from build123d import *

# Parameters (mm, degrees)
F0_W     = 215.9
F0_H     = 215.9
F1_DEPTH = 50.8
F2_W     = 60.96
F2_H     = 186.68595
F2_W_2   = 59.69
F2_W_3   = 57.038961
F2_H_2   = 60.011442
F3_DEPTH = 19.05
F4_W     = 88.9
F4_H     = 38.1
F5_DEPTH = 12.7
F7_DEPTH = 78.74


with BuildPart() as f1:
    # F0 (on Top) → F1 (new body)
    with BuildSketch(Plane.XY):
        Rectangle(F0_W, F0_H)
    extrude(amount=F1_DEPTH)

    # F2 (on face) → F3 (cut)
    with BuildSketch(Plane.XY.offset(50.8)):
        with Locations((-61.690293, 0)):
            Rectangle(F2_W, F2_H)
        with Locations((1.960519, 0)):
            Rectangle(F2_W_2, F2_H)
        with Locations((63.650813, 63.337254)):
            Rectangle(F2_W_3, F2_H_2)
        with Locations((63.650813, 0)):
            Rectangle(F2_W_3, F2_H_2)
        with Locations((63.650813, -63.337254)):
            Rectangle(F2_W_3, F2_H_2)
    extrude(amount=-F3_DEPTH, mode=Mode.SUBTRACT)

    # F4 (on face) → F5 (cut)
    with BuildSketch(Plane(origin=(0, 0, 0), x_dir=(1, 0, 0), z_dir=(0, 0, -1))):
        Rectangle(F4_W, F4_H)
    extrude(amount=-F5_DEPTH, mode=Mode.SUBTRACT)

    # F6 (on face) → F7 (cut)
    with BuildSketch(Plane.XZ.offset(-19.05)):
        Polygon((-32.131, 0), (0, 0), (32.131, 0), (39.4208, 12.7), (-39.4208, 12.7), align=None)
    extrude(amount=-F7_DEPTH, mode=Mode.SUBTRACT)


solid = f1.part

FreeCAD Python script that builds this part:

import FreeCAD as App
import Part
import Sketcher
Q = App.Units.Quantity

doc = App.newDocument("Part")
body = doc.addObject("PartDesign::Body", "Body")

# Sketch on XY plane
sketch1 = body.newObject("Sketcher::SketchObject", "Sketch")
sketch1.AttachmentSupport = (doc.getObject("XY_Plane"), [""])
sketch1.MapMode = "FlatFace"
sketch1.addGeometry([
    Part.LineSegment(App.Vector(-108, 108, 0), App.Vector(-108, -108, 0)),
    Part.LineSegment(App.Vector(-108, -108, 0), App.Vector(108, -108, 0)),
    Part.LineSegment(App.Vector(108, -108, 0), App.Vector(108, 108, 0)),
    Part.LineSegment(App.Vector(108, 108, 0), App.Vector(-108, 108, 0)),
], False)
sketch1.addConstraint([
    Sketcher.Constraint("Coincident", 0, 2, 1, 1),
    Sketcher.Constraint("Coincident", 1, 2, 2, 1),
    Sketcher.Constraint("Coincident", 2, 2, 3, 1),
    Sketcher.Constraint("Coincident", 3, 2, 0, 1),
    Sketcher.Constraint("Vertical", 0),
    Sketcher.Constraint("Horizontal", 1),
    Sketcher.Constraint("Vertical", 2),
    Sketcher.Constraint("Horizontal", 3),
    Sketcher.Constraint("Symmetric", 0, 2, 2, 2, -1, 1),
    Sketcher.Constraint("Equal", 3, 0),
    Sketcher.Constraint("DistanceX", 1, 1, 1, 2, Q("8.5 in")),
])
pad1 = body.newObject("PartDesign::Pad", "Pad")
pad1.Profile = sketch1
pad1.Length = Q("2 in")

# Sketch on XY plane
sketch2 = body.newObject("Sketcher::SketchObject", "Sketch001")
sketch2.AttachmentSupport = (doc.getObject("XY_Plane"), [""])
sketch2.MapMode = "FlatFace"
sketch2.AttachmentOffset = App.Placement(App.Vector(0, 0, 2 * 25.4), App.Rotation())
sketch2.addGeometry([
    Part.LineSegment(App.Vector(-92, 93, 0), App.Vector(-92, -93, 0)),  # 0
    Part.LineSegment(App.Vector(-92, -93, 0), App.Vector(-31, -93, 0)),  # 1
    Part.LineSegment(App.Vector(-31, -93, 0), App.Vector(-31, 93, 0)),  # 2
    Part.LineSegment(App.Vector(-31, 93, 0), App.Vector(-92, 93, 0)),  # 3
    Part.LineSegment(App.Vector(-28, 93, 0), App.Vector(-28, -93, 0)),  # 4
    Part.LineSegment(App.Vector(-28, -93, 0), App.Vector(32, -93, 0)),  # 5
    Part.LineSegment(App.Vector(32, -93, 0), App.Vector(32, 93, 0)),  # 6
    Part.LineSegment(App.Vector(32, 93, 0), App.Vector(-28, 93, 0)),  # 7
    Part.LineSegment(App.Vector(35, 93, 0), App.Vector(35, 33, 0)),  # 8
    Part.LineSegment(App.Vector(35, 33, 0), App.Vector(92, 33, 0)),  # 9
    Part.LineSegment(App.Vector(92, 33, 0), App.Vector(92, 93, 0)),  # 10
    Part.LineSegment(App.Vector(92, 93, 0), App.Vector(35, 93, 0)),  # 11
    Part.LineSegment(App.Vector(35, 30, 0), App.Vector(35, -30, 0)),  # 12
    Part.LineSegment(App.Vector(35, -30, 0), App.Vector(92, -30, 0)),  # 13
    Part.LineSegment(App.Vector(92, -30, 0), App.Vector(92, 30, 0)),  # 14
    Part.LineSegment(App.Vector(92, 30, 0), App.Vector(35, 30, 0)),  # 15
    Part.LineSegment(App.Vector(35, -33, 0), App.Vector(35, -93, 0)),  # 16
    Part.LineSegment(App.Vector(35, -93, 0), App.Vector(92, -93, 0)),  # 17
    Part.LineSegment(App.Vector(92, -93, 0), App.Vector(92, -33, 0)),  # 18
    Part.LineSegment(App.Vector(92, -33, 0), App.Vector(35, -33, 0)),  # 19
], False)
sketch2.addConstraint([
    Sketcher.Constraint("Coincident", 0, 2, 1, 1),
    Sketcher.Constraint("Coincident", 1, 2, 2, 1),
    Sketcher.Constraint("Coincident", 2, 2, 3, 1),
    Sketcher.Constraint("Coincident", 3, 2, 0, 1),
    Sketcher.Constraint("Coincident", 4, 2, 5, 1),
    Sketcher.Constraint("Coincident", 5, 2, 6, 1),
    Sketcher.Constraint("Coincident", 6, 2, 7, 1),
    Sketcher.Constraint("Coincident", 7, 2, 4, 1),
    Sketcher.Constraint("Coincident", 8, 2, 9, 1),
    Sketcher.Constraint("Coincident", 9, 2, 10, 1),
    Sketcher.Constraint("Coincident", 10, 2, 11, 1),
    Sketcher.Constraint("Coincident", 11, 2, 8, 1),
    Sketcher.Constraint("Coincident", 12, 2, 13, 1),
    Sketcher.Constraint("Coincident", 13, 2, 14, 1),
    Sketcher.Constraint("Coincident", 14, 2, 15, 1),
    Sketcher.Constraint("Coincident", 15, 2, 12, 1),
    Sketcher.Constraint("Coincident", 16, 2, 17, 1),
    Sketcher.Constraint("Coincident", 17, 2, 18, 1),
    Sketcher.Constraint("Coincident", 18, 2, 19, 1),
    Sketcher.Constraint("Coincident", 19, 2, 16, 1),
    Sketcher.Constraint("Vertical", 0),
    Sketcher.Constraint("Horizontal", 1),
    Sketcher.Constraint("Vertical", 2),
    Sketcher.Constraint("Horizontal", 3),
    Sketcher.Constraint("Vertical", 4),
    Sketcher.Constraint("Horizontal", 5),
    Sketcher.Constraint("Vertical", 6),
    Sketcher.Constraint("Horizontal", 7),
    Sketcher.Constraint("Vertical", 8),
    Sketcher.Constraint("Horizontal", 9),
    Sketcher.Constraint("Vertical", 10),
    Sketcher.Constraint("Horizontal", 11),
    Sketcher.Constraint("Vertical", 12),
    Sketcher.Constraint("Horizontal", 13),
    Sketcher.Constraint("Vertical", 14),
    Sketcher.Constraint("Horizontal", 15),
    Sketcher.Constraint("Vertical", 16),
    Sketcher.Constraint("Horizontal", 17),
    Sketcher.Constraint("Vertical", 18),
    Sketcher.Constraint("Horizontal", 19),
    Sketcher.Constraint("Symmetric", 0, 2, 10, 2, -1, 1),
    Sketcher.Constraint("Symmetric", 3, 2, 17, 2, -1, 1),
    Sketcher.Constraint("Symmetric", 11, 2, 16, 2, -1),
    Sketcher.Constraint("Horizontal", 1, 2, 4, 2),
    Sketcher.Constraint("Horizontal", 3, 2, 6, 2),
    Sketcher.Constraint("Vertical", 11, 2, 12, 2),
    Sketcher.Constraint("Vertical", 10, 2, 13, 2),
    Sketcher.Constraint("Equal", 10, 12),
    Sketcher.Constraint("Equal", 14, 16),
    Sketcher.Constraint("DistanceX", 1, 1, 1, 2, Q("2.4 in")),
    Sketcher.Constraint("DistanceX", 5, 1, 5, 2, Q("2.35 in")),
    Sketcher.Constraint("DistanceX", 9, 1, 9, 2, Q("57.038961 mm")),
    Sketcher.Constraint("DistanceY", 0, 2, 0, 1, Q("186.68595 mm")),
    Sketcher.Constraint("DistanceY", 8, 2, 8, 1, Q("60.011442 mm")),
    Sketcher.Constraint("DistanceX", 4, 2, -1, 1, Q("27.884481 mm")),
    Sketcher.Constraint("DistanceY", 12, 2, -1, 1, Q("30.005721 mm")),
    Sketcher.Constraint("DistanceX", 1, 2, 4, 2, Q("3.325812 mm")),
])
pocket1 = body.newObject("PartDesign::Pocket", "Pocket")
pocket1.Profile = sketch2
pocket1.Length = Q("0.75 in")

# Sketch on XY plane
sketch3 = body.newObject("Sketcher::SketchObject", "Sketch002")
sketch3.AttachmentSupport = (doc.getObject("XY_Plane"), [""])
sketch3.MapMode = "FlatFace"
sketch3.addGeometry([
    Part.LineSegment(App.Vector(-44, -19, 0), App.Vector(-44, 19, 0)),
    Part.LineSegment(App.Vector(-44, 19, 0), App.Vector(44, 19, 0)),
    Part.LineSegment(App.Vector(44, 19, 0), App.Vector(44, -19, 0)),
    Part.LineSegment(App.Vector(44, -19, 0), App.Vector(-44, -19, 0)),
], False)
sketch3.addConstraint([
    Sketcher.Constraint("Coincident", 0, 2, 1, 1),
    Sketcher.Constraint("Coincident", 1, 2, 2, 1),
    Sketcher.Constraint("Coincident", 2, 2, 3, 1),
    Sketcher.Constraint("Coincident", 3, 2, 0, 1),
    Sketcher.Constraint("Vertical", 0),
    Sketcher.Constraint("Horizontal", 1),
    Sketcher.Constraint("Vertical", 2),
    Sketcher.Constraint("Horizontal", 3),
    Sketcher.Constraint("Symmetric", 0, 2, 2, 2, -1, 1),
    Sketcher.Constraint("DistanceX", 1, 1, 1, 2, Q("3.5 in")),
    Sketcher.Constraint("DistanceY", 0, 1, 0, 2, Q("1.5 in")),
])
pocket2 = body.newObject("PartDesign::Pocket", "Pocket001")
pocket2.Profile = sketch3
pocket2.Length = Q("0.5 in")
pocket2.Reversed = True

# Sketch on XZ plane
sketch4 = body.newObject("Sketcher::SketchObject", "Sketch003")
sketch4.AttachmentSupport = (doc.getObject("XZ_Plane"), [""])
sketch4.MapMode = "FlatFace"
sketch4.AttachmentOffset = App.Placement(App.Vector(0, 0, -0.75 * 25.4), App.Rotation())
sketch4.addGeometry([
    Part.LineSegment(App.Vector(-32, 0, 0), App.Vector(32, 0, 0)),
    Part.LineSegment(App.Vector(32, 0, 0), App.Vector(39, 13, 0)),
    Part.LineSegment(App.Vector(39, 13, 0), App.Vector(-39, 13, 0)),
    Part.LineSegment(App.Vector(-39, 13, 0), App.Vector(-32, 0, 0)),
], False)
sketch4.addConstraint([
    Sketcher.Constraint("Coincident", 0, 2, 1, 1),
    Sketcher.Constraint("Coincident", 1, 2, 2, 1),
    Sketcher.Constraint("Coincident", 2, 2, 3, 1),
    Sketcher.Constraint("Coincident", 3, 2, 0, 1),
    Sketcher.Constraint("Horizontal", 0),
    Sketcher.Constraint("Horizontal", 2),
    Sketcher.Constraint("Symmetric", 0, 2, 3, 2, -1, 1),
    Sketcher.Constraint("Equal", 1, 3),
    Sketcher.Constraint("DistanceX", 0, 1, 0, 2, Q("2.53 in")),
    Sketcher.Constraint("DistanceY", -1, 1, 1, 2, Q("0.5 in")),
    Sketcher.Constraint("DistanceX", 2, 2, 2, 1, Q("3.104 in")),
])
pocket3 = body.newObject("PartDesign::Pocket", "Pocket002")
pocket3.Profile = sketch4
pocket3.Length = Q("3.1 in")

doc.recompute()
